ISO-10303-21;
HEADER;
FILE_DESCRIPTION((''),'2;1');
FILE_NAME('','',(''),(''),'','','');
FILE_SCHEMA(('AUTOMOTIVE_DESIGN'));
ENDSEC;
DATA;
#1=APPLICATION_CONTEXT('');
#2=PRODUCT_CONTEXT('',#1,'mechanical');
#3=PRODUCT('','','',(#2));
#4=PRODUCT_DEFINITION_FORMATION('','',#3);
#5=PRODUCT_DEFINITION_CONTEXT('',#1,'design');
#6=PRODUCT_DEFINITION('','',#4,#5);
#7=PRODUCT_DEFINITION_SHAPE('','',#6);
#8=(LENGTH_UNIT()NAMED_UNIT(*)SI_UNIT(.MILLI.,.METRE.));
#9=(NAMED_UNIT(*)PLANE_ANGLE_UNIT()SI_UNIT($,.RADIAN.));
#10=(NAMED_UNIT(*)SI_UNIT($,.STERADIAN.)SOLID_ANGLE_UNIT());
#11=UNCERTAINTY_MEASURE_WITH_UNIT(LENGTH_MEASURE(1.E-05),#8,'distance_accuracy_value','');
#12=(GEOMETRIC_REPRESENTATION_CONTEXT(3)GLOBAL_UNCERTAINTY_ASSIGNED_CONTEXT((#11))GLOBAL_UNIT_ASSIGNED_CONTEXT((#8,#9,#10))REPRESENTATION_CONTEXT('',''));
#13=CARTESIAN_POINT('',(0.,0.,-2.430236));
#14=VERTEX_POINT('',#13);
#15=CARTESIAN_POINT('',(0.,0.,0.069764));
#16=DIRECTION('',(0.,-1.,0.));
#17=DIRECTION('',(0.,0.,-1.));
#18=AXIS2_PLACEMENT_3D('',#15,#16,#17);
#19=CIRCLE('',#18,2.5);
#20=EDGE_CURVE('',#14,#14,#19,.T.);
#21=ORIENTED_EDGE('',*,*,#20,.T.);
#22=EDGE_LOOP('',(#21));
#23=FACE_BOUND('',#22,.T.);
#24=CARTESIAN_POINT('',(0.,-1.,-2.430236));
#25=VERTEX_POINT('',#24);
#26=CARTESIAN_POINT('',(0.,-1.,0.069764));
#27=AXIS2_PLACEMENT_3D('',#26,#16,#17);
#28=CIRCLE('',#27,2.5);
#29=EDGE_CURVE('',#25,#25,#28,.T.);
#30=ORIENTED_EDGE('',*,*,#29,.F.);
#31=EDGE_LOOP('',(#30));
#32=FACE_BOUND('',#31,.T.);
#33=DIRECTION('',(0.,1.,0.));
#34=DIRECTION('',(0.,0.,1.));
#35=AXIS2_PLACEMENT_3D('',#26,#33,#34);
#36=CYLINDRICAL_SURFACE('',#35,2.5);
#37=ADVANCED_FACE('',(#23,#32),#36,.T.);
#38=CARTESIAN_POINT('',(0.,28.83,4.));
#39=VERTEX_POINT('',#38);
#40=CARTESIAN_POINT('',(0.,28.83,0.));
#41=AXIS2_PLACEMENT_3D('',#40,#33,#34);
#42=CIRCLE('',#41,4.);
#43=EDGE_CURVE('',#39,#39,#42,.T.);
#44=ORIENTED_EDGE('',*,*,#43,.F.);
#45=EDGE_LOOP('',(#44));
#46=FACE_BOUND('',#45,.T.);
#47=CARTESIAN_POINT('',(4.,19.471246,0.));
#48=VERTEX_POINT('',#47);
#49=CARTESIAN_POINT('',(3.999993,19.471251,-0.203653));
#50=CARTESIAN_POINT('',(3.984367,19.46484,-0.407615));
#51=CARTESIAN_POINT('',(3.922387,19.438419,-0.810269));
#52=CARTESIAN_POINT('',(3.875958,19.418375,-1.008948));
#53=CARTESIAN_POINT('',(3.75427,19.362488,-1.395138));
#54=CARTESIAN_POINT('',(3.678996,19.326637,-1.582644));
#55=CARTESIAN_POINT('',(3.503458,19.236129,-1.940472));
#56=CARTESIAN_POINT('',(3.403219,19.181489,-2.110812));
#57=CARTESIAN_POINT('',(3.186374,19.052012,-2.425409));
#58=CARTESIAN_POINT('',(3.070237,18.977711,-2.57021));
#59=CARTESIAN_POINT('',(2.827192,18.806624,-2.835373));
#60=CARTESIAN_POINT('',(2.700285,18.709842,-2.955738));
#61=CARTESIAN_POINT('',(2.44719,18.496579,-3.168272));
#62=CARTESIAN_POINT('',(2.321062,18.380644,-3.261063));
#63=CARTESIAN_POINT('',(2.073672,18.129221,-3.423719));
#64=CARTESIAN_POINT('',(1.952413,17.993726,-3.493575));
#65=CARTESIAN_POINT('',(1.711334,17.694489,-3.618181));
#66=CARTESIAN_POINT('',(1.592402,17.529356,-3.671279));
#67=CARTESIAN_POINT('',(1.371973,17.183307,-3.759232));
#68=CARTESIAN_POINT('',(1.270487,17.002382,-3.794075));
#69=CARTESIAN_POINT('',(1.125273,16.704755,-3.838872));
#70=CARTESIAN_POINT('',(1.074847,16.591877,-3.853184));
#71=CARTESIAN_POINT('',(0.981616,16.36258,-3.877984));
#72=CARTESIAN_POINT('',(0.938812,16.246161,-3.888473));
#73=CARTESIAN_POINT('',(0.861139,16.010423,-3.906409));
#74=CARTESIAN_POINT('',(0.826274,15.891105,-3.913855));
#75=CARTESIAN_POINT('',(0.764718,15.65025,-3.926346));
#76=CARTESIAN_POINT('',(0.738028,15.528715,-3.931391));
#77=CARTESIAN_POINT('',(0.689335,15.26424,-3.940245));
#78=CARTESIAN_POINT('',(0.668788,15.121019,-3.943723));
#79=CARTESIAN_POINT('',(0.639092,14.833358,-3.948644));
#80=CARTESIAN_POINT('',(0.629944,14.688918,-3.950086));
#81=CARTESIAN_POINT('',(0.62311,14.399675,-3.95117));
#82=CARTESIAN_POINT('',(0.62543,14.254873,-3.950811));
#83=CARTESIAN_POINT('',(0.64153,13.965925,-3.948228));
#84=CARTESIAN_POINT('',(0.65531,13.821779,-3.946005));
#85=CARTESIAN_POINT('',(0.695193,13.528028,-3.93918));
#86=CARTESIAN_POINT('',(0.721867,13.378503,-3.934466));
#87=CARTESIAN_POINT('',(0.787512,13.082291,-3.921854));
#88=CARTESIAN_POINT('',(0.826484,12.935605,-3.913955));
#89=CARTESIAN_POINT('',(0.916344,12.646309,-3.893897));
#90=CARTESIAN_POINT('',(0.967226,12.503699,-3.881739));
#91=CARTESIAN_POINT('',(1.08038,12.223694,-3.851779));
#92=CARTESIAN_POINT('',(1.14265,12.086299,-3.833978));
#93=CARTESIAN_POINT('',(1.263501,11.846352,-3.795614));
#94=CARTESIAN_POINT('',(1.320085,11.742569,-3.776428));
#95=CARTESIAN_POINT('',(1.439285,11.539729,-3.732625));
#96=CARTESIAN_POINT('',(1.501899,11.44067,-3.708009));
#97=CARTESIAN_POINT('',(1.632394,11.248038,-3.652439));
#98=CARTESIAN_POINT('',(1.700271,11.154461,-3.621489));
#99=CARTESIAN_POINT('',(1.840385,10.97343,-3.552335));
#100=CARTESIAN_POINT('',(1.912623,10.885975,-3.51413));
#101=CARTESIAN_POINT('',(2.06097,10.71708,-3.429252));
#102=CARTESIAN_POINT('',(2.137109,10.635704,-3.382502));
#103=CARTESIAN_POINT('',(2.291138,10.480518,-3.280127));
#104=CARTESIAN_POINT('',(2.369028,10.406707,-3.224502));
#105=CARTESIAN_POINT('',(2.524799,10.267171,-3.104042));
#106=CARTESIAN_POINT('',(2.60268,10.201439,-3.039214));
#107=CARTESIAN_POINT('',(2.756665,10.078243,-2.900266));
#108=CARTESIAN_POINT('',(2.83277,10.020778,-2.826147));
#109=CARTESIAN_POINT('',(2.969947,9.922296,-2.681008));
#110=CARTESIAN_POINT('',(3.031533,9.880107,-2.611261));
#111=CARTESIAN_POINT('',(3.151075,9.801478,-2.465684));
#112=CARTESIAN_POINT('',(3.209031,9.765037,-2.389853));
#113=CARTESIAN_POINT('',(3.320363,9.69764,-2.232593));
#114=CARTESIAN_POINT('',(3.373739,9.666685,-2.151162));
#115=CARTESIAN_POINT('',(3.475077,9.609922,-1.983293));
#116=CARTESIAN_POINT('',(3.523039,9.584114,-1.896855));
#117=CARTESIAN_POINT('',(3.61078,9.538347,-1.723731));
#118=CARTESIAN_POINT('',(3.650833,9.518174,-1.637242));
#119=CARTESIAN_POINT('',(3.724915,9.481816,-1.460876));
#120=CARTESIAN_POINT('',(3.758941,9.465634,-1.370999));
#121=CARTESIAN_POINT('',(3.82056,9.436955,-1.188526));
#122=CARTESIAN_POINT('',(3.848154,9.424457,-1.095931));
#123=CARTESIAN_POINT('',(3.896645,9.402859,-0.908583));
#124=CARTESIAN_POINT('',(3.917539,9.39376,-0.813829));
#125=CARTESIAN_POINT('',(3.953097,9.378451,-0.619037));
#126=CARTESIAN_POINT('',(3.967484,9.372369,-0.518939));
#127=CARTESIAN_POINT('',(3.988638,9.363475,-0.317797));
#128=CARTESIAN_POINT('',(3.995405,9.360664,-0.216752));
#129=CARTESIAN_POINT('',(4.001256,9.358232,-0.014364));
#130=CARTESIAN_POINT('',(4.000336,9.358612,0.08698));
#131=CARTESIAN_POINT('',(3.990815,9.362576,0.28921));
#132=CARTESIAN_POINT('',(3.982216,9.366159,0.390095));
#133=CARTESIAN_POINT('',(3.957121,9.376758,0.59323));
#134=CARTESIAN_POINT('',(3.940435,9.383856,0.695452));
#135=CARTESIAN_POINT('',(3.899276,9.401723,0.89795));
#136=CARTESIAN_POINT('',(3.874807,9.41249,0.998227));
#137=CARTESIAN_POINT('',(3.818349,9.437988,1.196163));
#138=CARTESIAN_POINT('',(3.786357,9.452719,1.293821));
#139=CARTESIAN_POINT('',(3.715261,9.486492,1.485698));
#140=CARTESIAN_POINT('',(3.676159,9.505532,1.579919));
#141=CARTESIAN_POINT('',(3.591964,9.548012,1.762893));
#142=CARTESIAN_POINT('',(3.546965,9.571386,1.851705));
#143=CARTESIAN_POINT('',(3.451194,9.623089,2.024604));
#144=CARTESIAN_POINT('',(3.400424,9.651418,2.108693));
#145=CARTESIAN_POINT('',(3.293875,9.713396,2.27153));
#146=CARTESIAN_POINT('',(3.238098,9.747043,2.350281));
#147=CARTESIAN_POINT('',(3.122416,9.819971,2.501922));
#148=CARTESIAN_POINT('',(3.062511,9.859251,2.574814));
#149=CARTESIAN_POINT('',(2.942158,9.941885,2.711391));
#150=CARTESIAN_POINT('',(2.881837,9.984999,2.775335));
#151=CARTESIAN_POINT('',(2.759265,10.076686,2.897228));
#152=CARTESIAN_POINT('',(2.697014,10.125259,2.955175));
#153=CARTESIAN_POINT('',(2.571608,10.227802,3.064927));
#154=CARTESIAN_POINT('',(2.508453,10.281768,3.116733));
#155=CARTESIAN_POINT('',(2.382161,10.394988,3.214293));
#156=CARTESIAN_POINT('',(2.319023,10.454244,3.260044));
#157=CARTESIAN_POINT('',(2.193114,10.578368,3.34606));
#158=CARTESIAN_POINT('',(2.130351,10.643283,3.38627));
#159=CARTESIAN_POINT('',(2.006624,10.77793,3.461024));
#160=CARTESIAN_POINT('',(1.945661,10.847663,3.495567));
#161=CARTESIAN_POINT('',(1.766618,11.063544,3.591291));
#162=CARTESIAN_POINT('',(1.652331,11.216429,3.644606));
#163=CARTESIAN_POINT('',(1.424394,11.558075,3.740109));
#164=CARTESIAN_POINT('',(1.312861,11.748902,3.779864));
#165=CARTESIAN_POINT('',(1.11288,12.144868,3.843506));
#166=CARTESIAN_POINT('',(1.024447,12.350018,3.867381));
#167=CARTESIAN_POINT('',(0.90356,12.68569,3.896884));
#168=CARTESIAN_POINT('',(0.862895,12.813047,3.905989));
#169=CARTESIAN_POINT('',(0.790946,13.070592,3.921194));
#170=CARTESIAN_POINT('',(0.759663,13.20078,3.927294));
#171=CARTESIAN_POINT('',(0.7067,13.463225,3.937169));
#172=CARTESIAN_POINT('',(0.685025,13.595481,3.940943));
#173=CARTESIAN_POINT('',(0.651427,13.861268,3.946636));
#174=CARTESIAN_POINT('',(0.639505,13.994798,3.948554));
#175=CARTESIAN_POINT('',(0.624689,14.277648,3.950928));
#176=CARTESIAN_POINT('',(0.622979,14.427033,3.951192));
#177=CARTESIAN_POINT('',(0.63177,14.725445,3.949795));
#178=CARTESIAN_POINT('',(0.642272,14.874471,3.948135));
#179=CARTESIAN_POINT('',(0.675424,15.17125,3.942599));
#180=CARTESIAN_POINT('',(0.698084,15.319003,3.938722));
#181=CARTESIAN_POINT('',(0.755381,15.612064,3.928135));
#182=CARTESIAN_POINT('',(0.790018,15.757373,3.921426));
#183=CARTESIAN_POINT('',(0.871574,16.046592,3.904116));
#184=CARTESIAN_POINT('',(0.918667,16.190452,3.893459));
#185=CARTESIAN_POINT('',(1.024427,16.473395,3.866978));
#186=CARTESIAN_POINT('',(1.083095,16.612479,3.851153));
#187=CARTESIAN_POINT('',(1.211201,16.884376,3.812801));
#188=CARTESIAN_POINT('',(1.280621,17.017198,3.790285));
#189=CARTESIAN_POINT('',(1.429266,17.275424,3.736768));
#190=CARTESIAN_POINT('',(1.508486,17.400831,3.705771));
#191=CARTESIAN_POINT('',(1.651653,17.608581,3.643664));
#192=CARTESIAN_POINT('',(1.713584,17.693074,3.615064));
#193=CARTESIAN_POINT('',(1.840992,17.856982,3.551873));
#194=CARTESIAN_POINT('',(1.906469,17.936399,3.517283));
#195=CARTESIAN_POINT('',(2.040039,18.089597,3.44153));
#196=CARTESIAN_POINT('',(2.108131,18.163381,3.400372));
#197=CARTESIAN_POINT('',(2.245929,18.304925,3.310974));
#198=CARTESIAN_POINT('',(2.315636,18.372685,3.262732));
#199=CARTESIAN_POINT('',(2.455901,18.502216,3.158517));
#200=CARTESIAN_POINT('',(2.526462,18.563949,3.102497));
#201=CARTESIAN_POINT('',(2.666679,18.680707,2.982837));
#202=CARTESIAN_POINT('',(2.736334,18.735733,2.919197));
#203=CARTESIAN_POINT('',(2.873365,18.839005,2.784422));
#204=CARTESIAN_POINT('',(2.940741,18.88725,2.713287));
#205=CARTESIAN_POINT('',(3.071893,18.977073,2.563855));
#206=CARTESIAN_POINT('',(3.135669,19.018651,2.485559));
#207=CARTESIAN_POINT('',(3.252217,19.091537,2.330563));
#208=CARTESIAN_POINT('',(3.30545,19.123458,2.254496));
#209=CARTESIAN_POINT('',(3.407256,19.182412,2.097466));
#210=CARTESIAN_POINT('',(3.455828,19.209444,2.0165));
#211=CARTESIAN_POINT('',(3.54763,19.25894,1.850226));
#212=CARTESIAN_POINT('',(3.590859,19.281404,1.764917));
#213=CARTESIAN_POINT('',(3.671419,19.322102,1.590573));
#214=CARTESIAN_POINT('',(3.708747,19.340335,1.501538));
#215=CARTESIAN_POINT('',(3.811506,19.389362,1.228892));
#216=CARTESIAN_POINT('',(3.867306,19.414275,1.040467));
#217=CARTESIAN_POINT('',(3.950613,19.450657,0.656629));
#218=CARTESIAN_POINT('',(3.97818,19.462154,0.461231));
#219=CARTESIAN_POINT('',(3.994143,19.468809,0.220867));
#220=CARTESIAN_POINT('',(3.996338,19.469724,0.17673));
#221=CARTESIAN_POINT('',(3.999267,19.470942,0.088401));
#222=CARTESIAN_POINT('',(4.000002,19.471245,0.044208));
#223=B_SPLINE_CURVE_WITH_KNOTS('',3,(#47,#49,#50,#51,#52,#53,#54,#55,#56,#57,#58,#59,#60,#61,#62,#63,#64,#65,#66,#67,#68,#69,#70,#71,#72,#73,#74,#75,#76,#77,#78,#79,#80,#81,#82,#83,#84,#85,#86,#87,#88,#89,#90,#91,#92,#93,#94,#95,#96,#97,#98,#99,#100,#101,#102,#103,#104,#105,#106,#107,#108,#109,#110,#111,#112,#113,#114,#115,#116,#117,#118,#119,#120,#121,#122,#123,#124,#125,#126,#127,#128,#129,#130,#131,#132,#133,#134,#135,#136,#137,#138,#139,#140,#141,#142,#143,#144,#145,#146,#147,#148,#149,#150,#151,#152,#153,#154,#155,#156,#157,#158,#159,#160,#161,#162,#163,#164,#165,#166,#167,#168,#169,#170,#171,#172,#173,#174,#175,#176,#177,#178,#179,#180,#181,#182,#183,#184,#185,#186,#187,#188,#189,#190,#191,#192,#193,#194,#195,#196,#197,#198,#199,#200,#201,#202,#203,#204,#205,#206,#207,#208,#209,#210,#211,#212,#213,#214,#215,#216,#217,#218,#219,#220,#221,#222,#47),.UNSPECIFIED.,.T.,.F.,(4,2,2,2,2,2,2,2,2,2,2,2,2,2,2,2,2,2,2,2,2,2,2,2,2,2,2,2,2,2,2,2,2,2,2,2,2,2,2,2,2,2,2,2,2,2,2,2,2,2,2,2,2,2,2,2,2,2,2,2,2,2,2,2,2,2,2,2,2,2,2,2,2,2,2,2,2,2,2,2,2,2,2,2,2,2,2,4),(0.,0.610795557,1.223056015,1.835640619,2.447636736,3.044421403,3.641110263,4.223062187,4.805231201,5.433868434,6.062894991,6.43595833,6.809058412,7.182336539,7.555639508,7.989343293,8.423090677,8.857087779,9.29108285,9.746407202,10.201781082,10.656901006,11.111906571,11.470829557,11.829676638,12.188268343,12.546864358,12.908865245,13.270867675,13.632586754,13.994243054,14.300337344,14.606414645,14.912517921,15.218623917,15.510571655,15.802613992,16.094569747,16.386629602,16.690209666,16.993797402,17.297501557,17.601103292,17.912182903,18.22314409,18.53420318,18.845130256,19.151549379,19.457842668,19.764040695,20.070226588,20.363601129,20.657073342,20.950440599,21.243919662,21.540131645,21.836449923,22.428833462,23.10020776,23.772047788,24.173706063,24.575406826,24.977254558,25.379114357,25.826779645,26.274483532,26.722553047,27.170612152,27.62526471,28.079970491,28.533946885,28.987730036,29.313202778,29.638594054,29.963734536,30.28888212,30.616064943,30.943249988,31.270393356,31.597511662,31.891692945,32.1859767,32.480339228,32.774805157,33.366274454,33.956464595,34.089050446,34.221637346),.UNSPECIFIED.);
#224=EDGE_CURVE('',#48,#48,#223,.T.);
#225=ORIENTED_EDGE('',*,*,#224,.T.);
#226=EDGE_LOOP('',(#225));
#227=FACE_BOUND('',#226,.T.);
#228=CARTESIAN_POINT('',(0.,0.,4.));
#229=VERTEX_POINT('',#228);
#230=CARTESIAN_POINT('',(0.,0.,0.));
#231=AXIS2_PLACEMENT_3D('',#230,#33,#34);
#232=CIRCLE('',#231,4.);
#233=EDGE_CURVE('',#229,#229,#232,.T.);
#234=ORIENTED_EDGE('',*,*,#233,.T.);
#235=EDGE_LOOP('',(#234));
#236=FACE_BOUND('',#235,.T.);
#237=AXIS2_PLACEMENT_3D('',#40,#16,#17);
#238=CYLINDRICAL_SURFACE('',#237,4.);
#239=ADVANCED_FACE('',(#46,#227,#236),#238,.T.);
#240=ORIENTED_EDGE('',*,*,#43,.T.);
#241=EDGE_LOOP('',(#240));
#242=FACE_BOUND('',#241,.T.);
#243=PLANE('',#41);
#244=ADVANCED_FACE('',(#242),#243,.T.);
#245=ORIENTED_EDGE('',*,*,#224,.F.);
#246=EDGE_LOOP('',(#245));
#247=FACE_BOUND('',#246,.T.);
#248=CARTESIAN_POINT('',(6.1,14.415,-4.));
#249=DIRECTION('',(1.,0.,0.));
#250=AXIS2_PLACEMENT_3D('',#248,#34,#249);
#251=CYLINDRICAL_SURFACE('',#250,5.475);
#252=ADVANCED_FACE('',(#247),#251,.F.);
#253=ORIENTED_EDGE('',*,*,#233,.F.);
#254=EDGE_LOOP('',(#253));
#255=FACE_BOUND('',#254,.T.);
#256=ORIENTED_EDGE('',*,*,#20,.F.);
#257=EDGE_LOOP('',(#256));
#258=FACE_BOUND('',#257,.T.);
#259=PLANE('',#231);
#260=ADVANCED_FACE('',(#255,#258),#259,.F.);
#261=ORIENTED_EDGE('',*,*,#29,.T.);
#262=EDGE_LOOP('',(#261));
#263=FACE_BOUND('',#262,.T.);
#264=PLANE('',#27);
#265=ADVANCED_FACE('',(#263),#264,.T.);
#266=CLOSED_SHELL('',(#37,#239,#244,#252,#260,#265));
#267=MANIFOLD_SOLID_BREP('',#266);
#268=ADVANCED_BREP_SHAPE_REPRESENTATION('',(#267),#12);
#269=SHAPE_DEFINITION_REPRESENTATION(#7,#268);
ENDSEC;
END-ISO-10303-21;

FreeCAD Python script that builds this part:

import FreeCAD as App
import Part
import Sketcher
from FreeCAD import Vector

doc = App.newDocument("Part")
body = doc.addObject("PartDesign::Body", "Body")

# Sketch on XZ plane
sketch1 = body.newObject("Sketcher::SketchObject", "Sketch")
sketch1.AttachmentSupport = (doc.getObject("XZ_Plane"), [""])
sketch1.MapMode = "FlatFace"
sketch1.addGeometry(Part.Circle(Vector(0, 0, 0), Vector(0, 0, 1), 4), False)
sketch1.addConstraint([
    Sketcher.Constraint("Coincident", 0, 3, -1, 1),
    Sketcher.Constraint("Diameter", 0, 8.0),
])
pad1 = body.newObject("PartDesign::Pad", "Pad")
pad1.Profile = sketch1
pad1.Length = 28.83
pad1.Reversed = True

# Sketch on XY plane
sketch2 = body.newObject("Sketcher::SketchObject", "Sketch001")
sketch2.AttachmentSupport = (doc.getObject("XY_Plane"), [""])
sketch2.MapMode = "FlatFace"
sketch2.addGeometry(Part.Circle(Vector(6.1, 14.415, 0), Vector(0, 0, 1), 5.475), False)
sketch2.addConstraint([
    Sketcher.Constraint("Diameter", 0, 10.95),
    Sketcher.Constraint("DistanceX", -1, 1, 0, 3, 6.1),
    Sketcher.Constraint("DistanceY", -1, 1, 0, 3, 14.415),
])
pocket1 = body.newObject("PartDesign::Pocket", "Pocket")
pocket1.Profile = sketch2
pocket1.Type = "ThroughAll"
pocket1.Midplane = True

# Sketch on XZ plane
sketch3 = body.newObject("Sketcher::SketchObject", "Sketch002")
sketch3.AttachmentSupport = (doc.getObject("XZ_Plane"), [""])
sketch3.MapMode = "FlatFace"
sketch3.addGeometry(Part.Circle(Vector(0, 0.069764, 0), Vector(0, 0, 1), 2.5), False)
sketch3.addConstraint([
    Sketcher.Constraint("PointOnObject", 0, 3, -2),
    Sketcher.Constraint("Diameter", 0, 5.0),
    Sketcher.Constraint("DistanceY", -1, 1, 0, 3, 0.069764),
])
pad2 = body.newObject("PartDesign::Pad", "Pad001")
pad2.Profile = sketch3
pad2.Length = 1

doc.recompute()
